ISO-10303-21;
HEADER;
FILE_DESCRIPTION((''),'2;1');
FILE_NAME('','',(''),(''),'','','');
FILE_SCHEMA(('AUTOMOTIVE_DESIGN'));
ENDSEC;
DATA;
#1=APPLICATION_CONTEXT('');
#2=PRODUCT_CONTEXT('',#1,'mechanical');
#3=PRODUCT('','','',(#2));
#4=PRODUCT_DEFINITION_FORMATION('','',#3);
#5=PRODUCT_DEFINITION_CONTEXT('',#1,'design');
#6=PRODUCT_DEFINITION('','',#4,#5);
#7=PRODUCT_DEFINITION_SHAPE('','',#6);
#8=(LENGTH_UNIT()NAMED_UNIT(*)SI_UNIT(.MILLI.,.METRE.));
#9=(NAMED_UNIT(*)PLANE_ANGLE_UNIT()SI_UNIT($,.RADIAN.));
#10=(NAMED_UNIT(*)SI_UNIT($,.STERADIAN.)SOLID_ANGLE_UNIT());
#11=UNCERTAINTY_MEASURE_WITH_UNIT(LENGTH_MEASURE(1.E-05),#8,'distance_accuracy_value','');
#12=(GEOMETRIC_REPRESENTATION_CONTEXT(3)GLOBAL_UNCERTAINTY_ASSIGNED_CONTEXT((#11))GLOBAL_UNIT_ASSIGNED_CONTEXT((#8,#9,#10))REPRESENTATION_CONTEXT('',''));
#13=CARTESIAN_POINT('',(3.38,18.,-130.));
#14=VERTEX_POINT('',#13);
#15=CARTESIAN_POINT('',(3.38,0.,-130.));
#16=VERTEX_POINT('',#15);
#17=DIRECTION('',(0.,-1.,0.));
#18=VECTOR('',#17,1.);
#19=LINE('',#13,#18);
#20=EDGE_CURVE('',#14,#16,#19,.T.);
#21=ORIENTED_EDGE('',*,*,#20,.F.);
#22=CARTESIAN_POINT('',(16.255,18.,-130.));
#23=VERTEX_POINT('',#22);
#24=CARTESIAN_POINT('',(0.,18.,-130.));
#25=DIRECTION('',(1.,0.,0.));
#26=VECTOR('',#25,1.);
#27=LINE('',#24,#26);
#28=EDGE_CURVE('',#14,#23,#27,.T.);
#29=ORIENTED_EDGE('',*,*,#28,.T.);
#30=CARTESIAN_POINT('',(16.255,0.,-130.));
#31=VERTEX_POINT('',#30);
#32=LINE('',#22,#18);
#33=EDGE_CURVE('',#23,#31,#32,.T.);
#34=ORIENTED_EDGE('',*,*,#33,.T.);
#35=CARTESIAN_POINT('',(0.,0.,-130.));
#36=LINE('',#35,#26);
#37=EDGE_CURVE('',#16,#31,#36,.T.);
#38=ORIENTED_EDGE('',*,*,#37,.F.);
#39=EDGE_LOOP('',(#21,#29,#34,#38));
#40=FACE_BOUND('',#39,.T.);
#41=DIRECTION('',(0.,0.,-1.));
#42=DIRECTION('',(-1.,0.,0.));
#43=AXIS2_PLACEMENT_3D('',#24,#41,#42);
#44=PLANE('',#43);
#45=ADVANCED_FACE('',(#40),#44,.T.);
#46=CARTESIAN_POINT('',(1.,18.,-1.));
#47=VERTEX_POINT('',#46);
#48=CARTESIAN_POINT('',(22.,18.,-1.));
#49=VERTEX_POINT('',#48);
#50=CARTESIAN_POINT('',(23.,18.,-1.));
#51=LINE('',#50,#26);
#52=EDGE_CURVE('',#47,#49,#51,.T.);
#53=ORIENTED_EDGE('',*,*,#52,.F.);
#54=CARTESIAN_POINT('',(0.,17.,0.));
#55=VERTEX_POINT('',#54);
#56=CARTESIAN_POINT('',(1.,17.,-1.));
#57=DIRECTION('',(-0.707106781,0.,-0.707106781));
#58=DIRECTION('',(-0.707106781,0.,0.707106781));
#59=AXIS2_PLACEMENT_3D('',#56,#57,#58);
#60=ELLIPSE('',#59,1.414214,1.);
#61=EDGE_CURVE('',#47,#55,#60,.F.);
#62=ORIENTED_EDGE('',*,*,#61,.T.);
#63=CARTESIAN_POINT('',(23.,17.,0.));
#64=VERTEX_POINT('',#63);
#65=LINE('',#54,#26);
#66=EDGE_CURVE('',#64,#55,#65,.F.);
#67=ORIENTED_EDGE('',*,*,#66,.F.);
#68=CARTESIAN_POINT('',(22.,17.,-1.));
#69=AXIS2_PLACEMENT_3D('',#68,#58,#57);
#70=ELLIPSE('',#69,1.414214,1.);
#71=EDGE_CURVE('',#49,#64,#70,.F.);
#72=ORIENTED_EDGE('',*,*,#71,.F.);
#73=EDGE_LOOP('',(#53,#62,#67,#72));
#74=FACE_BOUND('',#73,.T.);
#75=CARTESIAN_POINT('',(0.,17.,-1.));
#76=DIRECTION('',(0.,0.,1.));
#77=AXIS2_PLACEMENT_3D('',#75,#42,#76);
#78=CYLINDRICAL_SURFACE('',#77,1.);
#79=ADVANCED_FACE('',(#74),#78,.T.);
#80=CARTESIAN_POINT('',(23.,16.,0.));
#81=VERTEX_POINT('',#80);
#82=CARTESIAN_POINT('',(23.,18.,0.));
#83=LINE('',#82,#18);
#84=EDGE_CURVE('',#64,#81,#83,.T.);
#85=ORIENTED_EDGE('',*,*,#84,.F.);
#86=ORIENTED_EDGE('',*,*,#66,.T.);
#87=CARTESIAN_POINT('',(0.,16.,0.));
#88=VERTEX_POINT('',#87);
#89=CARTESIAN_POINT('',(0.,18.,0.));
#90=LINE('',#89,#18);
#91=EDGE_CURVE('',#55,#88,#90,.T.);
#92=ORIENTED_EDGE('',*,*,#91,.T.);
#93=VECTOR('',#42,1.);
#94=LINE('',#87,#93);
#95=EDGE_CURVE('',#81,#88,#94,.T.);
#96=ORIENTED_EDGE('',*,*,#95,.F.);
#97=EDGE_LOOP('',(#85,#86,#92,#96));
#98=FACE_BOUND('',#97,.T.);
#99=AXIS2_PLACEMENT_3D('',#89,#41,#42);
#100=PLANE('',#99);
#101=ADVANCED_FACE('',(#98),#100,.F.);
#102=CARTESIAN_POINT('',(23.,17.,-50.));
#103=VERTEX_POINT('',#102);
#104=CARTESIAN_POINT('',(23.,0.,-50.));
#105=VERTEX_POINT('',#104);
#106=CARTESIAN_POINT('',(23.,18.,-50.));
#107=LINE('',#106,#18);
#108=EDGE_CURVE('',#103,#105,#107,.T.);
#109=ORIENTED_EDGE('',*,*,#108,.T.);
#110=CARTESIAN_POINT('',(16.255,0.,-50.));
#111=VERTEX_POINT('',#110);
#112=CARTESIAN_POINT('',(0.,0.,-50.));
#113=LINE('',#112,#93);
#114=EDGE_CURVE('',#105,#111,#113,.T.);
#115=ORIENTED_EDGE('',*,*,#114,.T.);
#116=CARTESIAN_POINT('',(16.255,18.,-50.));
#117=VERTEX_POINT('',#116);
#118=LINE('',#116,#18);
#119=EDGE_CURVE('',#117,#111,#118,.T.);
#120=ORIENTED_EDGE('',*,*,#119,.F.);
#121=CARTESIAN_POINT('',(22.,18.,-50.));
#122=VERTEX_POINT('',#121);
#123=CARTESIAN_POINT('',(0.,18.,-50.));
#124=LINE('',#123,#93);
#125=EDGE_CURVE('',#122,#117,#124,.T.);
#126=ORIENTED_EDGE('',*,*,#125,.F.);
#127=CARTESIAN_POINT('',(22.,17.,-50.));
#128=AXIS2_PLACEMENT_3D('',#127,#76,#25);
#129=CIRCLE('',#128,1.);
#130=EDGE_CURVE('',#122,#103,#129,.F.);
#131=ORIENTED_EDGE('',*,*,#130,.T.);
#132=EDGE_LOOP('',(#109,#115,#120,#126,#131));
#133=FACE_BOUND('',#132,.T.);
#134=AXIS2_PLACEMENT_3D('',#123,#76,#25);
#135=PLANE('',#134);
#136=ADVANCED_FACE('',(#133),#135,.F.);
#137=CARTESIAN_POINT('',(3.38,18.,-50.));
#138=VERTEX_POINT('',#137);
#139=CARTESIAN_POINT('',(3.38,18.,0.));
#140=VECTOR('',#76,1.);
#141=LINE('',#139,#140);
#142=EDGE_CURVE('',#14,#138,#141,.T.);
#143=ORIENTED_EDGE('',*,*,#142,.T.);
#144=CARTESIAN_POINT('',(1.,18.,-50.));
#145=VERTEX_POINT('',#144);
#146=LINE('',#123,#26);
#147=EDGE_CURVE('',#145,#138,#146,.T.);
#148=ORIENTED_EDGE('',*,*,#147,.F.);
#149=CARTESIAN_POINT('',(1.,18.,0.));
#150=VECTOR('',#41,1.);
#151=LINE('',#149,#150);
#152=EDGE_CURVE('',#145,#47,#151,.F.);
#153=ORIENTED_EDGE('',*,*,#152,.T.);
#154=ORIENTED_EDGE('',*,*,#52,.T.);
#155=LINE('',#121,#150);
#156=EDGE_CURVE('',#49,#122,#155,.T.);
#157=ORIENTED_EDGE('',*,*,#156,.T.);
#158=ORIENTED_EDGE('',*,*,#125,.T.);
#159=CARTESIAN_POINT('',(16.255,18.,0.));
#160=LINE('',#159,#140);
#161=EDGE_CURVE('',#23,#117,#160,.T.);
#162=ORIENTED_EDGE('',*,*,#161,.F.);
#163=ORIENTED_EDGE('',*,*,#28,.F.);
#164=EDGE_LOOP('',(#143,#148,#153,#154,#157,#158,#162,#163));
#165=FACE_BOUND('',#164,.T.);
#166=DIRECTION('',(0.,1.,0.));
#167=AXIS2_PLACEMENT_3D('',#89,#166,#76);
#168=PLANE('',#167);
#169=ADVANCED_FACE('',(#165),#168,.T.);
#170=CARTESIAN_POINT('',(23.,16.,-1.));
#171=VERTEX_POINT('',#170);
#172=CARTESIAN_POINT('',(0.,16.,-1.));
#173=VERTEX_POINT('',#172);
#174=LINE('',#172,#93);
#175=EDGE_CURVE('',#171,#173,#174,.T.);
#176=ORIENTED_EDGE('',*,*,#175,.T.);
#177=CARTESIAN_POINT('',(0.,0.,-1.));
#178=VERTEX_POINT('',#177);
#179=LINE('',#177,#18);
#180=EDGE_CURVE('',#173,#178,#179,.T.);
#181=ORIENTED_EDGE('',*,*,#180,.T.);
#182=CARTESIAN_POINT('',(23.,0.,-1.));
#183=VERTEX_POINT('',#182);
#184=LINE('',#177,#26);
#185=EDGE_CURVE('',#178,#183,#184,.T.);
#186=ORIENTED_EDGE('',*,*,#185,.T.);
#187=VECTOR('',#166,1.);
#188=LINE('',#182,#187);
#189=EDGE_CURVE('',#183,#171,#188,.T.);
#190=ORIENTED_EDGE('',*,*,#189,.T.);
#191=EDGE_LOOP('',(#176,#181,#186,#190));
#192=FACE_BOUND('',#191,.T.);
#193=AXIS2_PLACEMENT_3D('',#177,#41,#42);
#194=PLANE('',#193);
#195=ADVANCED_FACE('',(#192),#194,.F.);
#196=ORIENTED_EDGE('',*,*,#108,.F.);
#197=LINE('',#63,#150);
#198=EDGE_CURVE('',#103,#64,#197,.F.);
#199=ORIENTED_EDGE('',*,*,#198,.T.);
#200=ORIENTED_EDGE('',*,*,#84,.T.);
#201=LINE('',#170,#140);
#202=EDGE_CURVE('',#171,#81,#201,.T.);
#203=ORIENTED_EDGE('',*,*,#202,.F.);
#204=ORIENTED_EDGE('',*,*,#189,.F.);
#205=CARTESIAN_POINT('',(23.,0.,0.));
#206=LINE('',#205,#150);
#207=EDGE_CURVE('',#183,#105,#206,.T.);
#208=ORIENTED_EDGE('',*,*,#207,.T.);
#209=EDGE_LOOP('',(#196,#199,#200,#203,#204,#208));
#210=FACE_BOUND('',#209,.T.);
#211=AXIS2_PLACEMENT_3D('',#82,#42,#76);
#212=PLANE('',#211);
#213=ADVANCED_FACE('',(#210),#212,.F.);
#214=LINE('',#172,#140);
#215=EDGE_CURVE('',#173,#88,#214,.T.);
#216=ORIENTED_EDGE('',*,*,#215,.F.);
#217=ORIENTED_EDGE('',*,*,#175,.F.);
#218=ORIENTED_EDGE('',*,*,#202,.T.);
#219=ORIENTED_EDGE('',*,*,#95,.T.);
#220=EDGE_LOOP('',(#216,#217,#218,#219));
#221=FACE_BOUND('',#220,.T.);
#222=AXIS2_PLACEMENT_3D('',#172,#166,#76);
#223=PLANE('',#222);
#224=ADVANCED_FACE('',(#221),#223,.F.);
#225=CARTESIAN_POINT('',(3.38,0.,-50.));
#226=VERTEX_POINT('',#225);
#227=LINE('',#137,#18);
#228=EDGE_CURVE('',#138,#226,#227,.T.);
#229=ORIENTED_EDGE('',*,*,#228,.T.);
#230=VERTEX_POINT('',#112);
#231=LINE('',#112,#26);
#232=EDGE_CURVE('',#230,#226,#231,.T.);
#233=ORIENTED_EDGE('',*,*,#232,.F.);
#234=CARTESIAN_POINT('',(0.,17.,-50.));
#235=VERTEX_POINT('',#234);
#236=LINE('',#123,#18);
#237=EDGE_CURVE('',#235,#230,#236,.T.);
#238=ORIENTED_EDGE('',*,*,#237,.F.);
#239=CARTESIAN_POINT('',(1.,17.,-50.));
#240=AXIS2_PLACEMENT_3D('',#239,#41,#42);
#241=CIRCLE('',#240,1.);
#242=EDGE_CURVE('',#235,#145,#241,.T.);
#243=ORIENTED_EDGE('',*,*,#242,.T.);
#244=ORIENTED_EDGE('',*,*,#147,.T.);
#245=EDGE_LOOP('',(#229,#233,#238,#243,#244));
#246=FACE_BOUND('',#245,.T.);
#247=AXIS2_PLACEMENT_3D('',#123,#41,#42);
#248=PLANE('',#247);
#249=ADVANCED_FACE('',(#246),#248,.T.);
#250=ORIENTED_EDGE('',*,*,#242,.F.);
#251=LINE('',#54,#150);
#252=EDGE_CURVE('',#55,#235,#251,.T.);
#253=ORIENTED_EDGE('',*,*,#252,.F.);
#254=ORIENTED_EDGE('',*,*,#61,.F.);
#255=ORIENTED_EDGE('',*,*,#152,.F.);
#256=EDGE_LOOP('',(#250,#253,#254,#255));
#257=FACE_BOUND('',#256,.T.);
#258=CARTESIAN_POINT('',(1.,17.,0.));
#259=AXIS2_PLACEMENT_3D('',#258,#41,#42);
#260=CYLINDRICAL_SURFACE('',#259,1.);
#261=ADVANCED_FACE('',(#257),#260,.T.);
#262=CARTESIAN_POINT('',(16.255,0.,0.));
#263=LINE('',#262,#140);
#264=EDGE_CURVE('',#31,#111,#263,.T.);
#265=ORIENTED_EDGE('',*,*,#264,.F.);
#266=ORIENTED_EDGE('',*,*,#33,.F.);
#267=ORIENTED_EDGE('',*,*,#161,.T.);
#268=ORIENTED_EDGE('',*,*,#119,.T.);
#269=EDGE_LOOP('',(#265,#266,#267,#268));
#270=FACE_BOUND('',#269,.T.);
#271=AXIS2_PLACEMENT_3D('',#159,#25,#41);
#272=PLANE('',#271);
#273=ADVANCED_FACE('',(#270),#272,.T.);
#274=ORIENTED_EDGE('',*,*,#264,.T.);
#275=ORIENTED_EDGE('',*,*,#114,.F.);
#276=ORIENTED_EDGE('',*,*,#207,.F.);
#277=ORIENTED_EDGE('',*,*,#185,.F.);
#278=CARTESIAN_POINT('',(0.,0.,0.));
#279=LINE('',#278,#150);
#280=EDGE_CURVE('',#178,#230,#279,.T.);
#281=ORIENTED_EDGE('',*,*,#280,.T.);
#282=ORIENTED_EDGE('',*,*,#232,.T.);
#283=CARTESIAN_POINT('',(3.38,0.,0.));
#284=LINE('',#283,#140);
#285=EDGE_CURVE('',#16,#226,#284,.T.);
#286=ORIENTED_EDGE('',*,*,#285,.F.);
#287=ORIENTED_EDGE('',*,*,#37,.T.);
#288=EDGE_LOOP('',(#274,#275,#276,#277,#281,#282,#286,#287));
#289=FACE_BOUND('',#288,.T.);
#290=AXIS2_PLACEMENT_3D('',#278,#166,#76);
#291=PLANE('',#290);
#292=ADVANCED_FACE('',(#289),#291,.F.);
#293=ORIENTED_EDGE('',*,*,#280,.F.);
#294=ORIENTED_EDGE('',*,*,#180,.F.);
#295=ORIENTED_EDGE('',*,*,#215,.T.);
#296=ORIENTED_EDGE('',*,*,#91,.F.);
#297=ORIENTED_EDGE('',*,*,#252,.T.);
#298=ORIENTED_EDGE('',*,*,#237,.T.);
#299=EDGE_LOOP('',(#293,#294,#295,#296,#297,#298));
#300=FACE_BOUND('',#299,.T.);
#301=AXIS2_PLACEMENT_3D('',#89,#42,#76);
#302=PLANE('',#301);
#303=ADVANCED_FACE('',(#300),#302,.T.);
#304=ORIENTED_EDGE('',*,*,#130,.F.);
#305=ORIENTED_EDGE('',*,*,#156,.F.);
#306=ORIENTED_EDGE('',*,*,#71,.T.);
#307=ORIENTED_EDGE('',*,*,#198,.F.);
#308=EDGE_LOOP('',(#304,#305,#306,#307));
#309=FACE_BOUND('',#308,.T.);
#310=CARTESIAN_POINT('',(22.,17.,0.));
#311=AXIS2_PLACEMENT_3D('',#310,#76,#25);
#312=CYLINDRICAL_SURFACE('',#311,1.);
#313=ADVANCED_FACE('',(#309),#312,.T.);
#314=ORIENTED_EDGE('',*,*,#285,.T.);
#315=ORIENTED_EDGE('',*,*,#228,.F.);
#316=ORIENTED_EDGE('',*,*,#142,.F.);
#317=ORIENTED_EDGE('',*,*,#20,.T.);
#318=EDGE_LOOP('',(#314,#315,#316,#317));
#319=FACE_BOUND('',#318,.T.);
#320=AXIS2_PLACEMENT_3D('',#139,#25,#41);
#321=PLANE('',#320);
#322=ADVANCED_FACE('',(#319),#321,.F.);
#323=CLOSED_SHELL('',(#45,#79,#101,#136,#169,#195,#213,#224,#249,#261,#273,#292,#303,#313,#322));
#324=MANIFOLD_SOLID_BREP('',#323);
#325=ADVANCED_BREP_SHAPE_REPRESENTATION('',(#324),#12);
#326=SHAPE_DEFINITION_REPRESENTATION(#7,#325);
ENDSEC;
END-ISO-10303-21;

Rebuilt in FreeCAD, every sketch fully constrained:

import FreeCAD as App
import Part
import Sketcher
from FreeCAD import Vector


def edges_at(feature, points):
    """Names of the edges that pass closest to the given points."""
    edges = feature.Shape.Edges
    near = lambda p: min(range(len(edges)), key=lambda i: edges[i].distToShape(Part.Vertex(*p))[0])
    return sorted({f"Edge{near(p) + 1}" for p in points})

doc = App.newDocument("Part")
body = doc.addObject("PartDesign::Body", "Body")

sketch1 = body.newObject("Sketcher::SketchObject", "Sketch")
sketch1.AttachmentSupport = (doc.getObject("XZ_Plane"), [""])
sketch1.MapMode = "FlatFace"
sketch1.addGeometry(Part.LineSegment(Vector(0, -50, 0), Vector(0, 0, 0)), False)
sketch1.addGeometry(Part.LineSegment(Vector(0, 0, 0), Vector(23, 0, 0)), False)
sketch1.addGeometry(Part.LineSegment(Vector(23, 0, 0), Vector(23, -50, 0)), False)
sketch1.addGeometry(Part.LineSegment(Vector(23, -50, 0), Vector(16.3, -50, 0)), False)
sketch1.addGeometry(Part.LineSegment(Vector(16.3, -50, 0), Vector(16.3, -130, 0)), False)
sketch1.addGeometry(Part.LineSegment(Vector(16.3, -130, 0), Vector(3.4, -130, 0)), False)
sketch1.addGeometry(Part.LineSegment(Vector(3.4, -130, 0), Vector(3.4, -50, 0)), False)
sketch1.addGeometry(Part.LineSegment(Vector(3.4, -50, 0), Vector(0, -50, 0)), False)
sketch1.addConstraint(Sketcher.Constraint("Coincident", 0, 2, 1, 1))
sketch1.addConstraint(Sketcher.Constraint("Coincident", 1, 2, 2, 1))
sketch1.addConstraint(Sketcher.Constraint("Coincident", 2, 2, 3, 1))
sketch1.addConstraint(Sketcher.Constraint("Coincident", 3, 2, 4, 1))
sketch1.addConstraint(Sketcher.Constraint("Coincident", 4, 2, 5, 1))
sketch1.addConstraint(Sketcher.Constraint("Coincident", 5, 2, 6, 1))
sketch1.addConstraint(Sketcher.Constraint("Coincident", 6, 2, 7, 1))
sketch1.addConstraint(Sketcher.Constraint("Coincident", 7, 2, 0, 1))
sketch1.addConstraint(Sketcher.Constraint("Vertical", 0))
sketch1.addConstraint(Sketcher.Constraint("Horizontal", 1))
sketch1.addConstraint(Sketcher.Constraint("Vertical", 2))
sketch1.addConstraint(Sketcher.Constraint("Horizontal", 3))
sketch1.addConstraint(Sketcher.Constraint("Vertical", 4))
sketch1.addConstraint(Sketcher.Constraint("Horizontal", 5))
sketch1.addConstraint(Sketcher.Constraint("Vertical", 6))
sketch1.addConstraint(Sketcher.Constraint("Horizontal", 7))
sketch1.addConstraint(Sketcher.Constraint("Coincident", 0, 2, -1, 1))
sketch1.addConstraint(Sketcher.Constraint("Horizontal", 3, 2, 6, 2))
sketch1.addConstraint(Sketcher.Constraint("DistanceX", 1, 1, 1, 2, 23.0))
sketch1.addConstraint(Sketcher.Constraint("DistanceY", 0, 1, 0, 2, 50.0))
sketch1.addConstraint(Sketcher.Constraint("DistanceY", 4, 2, 4, 1, 80.0))
sketch1.addConstraint(Sketcher.Constraint("DistanceX", 7, 2, 7, 1, 3.38))
sketch1.addConstraint(Sketcher.Constraint("DistanceX", 3, 2, 3, 1, 6.745))
pad1 = body.newObject("PartDesign::Pad", "Pad")
pad1.Profile = sketch1
pad1.Length = 18
pad1.Reversed = True

sketch2 = body.newObject("Sketcher::SketchObject", "Sketch001")
sketch2.AttachmentSupport = (doc.getObject("XY_Plane"), [""])
sketch2.MapMode = "FlatFace"
sketch2.addGeometry(Part.LineSegment(Vector(0, 16, 0), Vector(0, 0, 0)), False)
sketch2.addGeometry(Part.LineSegment(Vector(0, 0, 0), Vector(23, 0, 0)), False)
sketch2.addGeometry(Part.LineSegment(Vector(23, 0, 0), Vector(23, 16, 0)), False)
sketch2.addGeometry(Part.LineSegment(Vector(23, 16, 0), Vector(0, 16, 0)), False)
sketch2.addConstraint(Sketcher.Constraint("Coincident", 0, 2, 1, 1))
sketch2.addConstraint(Sketcher.Constraint("Coincident", 1, 2, 2, 1))
sketch2.addConstraint(Sketcher.Constraint("Coincident", 2, 2, 3, 1))
sketch2.addConstraint(Sketcher.Constraint("Coincident", 3, 2, 0, 1))
sketch2.addConstraint(Sketcher.Constraint("Vertical", 0))
sketch2.addConstraint(Sketcher.Constraint("Horizontal", 1))
sketch2.addConstraint(Sketcher.Constraint("Vertical", 2))
sketch2.addConstraint(Sketcher.Constraint("Horizontal", 3))
sketch2.addConstraint(Sketcher.Constraint("Coincident", 0, 2, -1, 1))
sketch2.addConstraint(Sketcher.Constraint("DistanceX", 1, 1, 1, 2, 23.0))
sketch2.addConstraint(Sketcher.Constraint("DistanceY", 0, 2, 0, 1, 16.0))
pocket1 = body.newObject("PartDesign::Pocket", "Pocket")
pocket1.Profile = sketch2
pocket1.Length = 1
doc.recompute()

fillet = body.newObject("PartDesign::Fillet", "Fillet")
fillet.Base = (pocket1, edges_at(pocket1, [(0, 18, -25), (11.5, 18, 0), (23, 18, -25)]))
fillet.Radius = 1

doc.recompute()
